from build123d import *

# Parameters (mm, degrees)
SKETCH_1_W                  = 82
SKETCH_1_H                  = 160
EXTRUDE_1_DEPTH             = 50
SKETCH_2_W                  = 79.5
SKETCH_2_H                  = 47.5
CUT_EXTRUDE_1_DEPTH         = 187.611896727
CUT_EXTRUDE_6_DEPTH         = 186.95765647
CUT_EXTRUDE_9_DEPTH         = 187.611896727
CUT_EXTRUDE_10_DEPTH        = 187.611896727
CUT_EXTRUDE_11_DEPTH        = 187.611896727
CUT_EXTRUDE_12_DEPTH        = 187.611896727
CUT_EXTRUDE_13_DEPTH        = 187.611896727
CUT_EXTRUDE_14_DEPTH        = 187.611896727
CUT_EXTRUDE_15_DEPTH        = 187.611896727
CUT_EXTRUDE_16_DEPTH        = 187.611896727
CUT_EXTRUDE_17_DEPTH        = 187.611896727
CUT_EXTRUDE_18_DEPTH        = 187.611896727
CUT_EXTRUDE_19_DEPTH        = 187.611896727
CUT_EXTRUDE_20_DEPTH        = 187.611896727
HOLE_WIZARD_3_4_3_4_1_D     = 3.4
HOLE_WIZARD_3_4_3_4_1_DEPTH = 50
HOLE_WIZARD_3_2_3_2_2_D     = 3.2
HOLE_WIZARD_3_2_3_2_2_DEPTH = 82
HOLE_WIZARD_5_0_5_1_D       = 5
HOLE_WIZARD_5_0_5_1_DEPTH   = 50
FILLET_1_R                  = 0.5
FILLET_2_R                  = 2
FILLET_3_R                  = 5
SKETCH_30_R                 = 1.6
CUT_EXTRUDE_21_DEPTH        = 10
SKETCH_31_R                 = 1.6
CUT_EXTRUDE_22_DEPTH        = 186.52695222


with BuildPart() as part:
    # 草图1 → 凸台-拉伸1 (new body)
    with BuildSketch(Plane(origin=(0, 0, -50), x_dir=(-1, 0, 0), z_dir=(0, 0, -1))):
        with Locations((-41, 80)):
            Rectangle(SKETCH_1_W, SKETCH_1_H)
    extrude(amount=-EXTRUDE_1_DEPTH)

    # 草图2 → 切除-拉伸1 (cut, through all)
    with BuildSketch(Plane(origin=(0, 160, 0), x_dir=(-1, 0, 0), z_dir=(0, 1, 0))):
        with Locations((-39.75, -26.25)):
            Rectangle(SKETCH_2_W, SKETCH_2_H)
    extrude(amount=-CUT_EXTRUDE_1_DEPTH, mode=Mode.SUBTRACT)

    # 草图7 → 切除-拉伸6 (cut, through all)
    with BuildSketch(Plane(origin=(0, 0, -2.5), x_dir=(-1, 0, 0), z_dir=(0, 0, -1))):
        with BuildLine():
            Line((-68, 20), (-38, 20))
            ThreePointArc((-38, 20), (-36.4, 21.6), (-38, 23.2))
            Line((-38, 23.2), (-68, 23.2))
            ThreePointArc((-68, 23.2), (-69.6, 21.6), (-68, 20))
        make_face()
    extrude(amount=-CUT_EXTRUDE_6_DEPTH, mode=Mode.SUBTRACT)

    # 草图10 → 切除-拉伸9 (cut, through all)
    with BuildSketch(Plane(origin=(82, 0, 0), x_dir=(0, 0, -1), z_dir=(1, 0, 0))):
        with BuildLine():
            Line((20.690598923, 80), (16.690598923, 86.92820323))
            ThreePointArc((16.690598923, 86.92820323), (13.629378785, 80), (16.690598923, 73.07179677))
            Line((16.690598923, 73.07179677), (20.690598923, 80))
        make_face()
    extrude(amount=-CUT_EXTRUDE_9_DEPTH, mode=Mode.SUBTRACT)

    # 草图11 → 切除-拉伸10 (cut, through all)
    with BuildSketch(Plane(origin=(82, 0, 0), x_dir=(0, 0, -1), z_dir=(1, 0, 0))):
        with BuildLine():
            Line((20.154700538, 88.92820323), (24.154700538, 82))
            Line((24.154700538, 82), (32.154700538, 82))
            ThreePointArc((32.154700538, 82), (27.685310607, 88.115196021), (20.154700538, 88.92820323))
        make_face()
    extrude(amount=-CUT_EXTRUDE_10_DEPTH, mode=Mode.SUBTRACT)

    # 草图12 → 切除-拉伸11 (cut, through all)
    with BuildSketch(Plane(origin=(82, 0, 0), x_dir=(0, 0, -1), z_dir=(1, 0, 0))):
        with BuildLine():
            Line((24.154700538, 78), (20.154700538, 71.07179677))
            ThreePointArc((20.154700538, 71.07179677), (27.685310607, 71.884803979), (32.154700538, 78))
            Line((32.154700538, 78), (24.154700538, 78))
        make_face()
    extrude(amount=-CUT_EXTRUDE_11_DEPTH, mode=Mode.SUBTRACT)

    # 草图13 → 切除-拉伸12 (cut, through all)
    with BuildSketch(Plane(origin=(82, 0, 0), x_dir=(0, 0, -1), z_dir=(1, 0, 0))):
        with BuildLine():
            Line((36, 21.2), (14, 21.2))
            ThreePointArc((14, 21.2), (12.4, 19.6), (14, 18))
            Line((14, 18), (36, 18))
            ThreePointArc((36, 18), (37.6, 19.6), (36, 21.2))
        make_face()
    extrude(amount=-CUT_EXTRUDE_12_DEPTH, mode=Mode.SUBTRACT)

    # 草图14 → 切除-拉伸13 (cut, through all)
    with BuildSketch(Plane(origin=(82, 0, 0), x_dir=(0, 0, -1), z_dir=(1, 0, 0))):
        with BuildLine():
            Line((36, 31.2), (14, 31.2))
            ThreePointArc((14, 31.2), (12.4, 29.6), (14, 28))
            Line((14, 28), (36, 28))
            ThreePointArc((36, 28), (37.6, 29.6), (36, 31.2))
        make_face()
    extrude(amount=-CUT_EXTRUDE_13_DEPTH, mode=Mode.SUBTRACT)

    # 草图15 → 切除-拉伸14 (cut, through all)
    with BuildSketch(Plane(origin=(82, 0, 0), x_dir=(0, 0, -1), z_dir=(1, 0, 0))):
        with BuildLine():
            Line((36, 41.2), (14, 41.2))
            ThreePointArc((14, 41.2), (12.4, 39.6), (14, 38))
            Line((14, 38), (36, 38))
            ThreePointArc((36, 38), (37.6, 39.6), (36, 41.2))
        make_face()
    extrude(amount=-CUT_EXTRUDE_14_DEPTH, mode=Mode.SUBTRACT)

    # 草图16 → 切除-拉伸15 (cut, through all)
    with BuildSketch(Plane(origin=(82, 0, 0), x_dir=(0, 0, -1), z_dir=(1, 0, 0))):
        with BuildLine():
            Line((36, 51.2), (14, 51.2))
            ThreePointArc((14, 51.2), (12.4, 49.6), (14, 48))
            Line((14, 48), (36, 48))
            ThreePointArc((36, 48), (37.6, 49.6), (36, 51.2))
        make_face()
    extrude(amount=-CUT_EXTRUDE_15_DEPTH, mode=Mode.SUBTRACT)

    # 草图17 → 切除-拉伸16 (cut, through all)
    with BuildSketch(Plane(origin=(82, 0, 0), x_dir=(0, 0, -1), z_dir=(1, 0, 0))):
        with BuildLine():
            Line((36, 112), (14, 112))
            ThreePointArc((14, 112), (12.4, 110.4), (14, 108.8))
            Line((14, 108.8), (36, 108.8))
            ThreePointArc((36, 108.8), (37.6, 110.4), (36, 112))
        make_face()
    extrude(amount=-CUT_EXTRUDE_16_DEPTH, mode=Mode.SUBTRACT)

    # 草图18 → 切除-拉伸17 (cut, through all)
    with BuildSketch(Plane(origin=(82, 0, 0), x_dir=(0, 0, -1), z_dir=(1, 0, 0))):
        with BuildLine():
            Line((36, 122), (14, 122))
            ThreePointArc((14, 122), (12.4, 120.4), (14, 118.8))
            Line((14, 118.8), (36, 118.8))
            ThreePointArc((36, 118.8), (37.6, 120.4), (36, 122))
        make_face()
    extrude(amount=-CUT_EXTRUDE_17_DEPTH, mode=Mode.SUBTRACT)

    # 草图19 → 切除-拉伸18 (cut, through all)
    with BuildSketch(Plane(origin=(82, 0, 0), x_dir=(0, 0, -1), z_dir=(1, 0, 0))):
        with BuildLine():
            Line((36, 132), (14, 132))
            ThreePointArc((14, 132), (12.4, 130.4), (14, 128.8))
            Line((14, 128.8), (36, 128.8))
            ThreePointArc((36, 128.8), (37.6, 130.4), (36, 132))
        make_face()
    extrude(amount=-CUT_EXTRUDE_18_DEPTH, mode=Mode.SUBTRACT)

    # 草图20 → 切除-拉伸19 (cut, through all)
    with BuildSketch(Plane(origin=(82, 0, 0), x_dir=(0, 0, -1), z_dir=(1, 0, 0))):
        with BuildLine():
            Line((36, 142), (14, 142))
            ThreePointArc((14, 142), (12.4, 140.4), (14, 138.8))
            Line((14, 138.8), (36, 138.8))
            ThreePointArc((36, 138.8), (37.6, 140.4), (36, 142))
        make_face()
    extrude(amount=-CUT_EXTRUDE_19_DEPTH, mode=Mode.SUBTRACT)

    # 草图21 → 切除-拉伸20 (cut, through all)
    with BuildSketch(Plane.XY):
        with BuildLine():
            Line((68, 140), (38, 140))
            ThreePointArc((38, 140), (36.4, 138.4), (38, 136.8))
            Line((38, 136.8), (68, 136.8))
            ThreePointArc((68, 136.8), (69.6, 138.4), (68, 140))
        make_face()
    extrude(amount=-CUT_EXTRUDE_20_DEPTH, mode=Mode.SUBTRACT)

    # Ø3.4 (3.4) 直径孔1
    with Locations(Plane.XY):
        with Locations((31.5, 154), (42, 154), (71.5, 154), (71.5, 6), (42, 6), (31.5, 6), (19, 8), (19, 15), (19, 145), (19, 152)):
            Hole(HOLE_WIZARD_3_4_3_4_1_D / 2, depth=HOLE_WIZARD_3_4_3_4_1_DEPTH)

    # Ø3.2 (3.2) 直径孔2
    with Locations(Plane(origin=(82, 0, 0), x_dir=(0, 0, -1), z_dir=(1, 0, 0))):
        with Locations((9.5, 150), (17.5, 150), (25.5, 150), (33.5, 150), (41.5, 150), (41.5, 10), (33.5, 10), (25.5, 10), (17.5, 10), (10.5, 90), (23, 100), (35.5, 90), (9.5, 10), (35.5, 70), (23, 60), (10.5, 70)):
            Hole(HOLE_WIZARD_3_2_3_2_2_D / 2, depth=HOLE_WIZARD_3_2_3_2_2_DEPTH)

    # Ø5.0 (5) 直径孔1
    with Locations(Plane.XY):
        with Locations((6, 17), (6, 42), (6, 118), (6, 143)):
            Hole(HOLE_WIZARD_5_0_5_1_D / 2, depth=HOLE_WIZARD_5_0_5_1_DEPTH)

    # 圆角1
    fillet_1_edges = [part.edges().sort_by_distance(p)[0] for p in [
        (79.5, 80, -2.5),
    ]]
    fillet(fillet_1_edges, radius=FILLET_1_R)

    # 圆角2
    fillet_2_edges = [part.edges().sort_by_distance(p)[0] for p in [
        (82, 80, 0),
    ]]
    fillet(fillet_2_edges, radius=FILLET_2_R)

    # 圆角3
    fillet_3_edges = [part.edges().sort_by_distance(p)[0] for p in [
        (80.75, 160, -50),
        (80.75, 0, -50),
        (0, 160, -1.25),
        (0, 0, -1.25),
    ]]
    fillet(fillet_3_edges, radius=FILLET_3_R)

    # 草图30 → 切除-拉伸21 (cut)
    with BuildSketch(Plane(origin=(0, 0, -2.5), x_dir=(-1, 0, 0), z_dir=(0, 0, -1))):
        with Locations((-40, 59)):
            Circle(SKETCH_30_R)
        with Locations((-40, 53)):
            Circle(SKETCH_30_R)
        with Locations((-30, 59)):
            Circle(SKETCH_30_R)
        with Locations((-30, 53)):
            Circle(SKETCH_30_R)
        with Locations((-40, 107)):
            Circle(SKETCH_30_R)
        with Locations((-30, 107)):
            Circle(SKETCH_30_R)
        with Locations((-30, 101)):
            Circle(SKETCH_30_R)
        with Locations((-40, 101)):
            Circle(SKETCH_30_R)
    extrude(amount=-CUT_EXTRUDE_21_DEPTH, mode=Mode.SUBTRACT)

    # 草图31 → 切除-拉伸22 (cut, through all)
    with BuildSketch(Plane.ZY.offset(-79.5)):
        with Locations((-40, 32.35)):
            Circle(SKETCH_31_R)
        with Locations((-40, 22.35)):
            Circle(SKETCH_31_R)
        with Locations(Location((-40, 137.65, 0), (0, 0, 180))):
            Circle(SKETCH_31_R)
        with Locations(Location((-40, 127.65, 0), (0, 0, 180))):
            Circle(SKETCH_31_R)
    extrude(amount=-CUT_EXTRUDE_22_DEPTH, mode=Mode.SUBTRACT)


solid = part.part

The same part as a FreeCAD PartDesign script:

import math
import FreeCAD as App
import Part
import Sketcher

V = App.Vector
Q = App.Units.Quantity


def edges_at(feature, points):
    """Names of the edges that pass closest to the given points."""
    edges = feature.Shape.Edges
    near = lambda p: min(range(len(edges)), key=lambda i: edges[i].distToShape(Part.Vertex(*p))[0])
    return sorted({f"Edge{near(p) + 1}" for p in points})


def add_polygon(sketch, points):
    """Adds a closed chain of lines whose ends are joined by coincident constraints."""
    first, n = sketch.GeometryCount, len(points)
    for a, b in zip(points, points[1:] + points[:1]):
        sketch.addGeometry(Part.LineSegment(App.Vector(*a, 0), App.Vector(*b, 0)), False)
    for i in range(n):
        sketch.addConstraint(Sketcher.Constraint("Coincident", first + i, 2, first + (i + 1) % n, 1))

doc = App.newDocument("Part")
params = doc.addObject("Spreadsheet::Sheet", "Params")
for row, (alias, value) in enumerate([
    ("sketch1_width", "82 mm"),
    ("sketch1_height", "160 mm"),
    ("pad1_length", "50 mm"),
    ("sketch2_width", "79.5 mm"),
    ("sketch2_height", "47.5 mm"),
    ("sketch3_radius", "1.6 mm"),
    ("sketch3_width", "30 mm"),
    ("sketch4_length", "8 mm"),
    ("sketch5_height", "8 mm"),
    ("sketch5_length", "8 mm"),
    ("sketch6_height", "8 mm"),
    ("sketch6_length", "8 mm"),
    ("sketch7_radius", "1.6 mm"),
    ("sketch7_height", "22 mm"),
    ("sketch8_radius", "1.6 mm"),
    ("sketch8_height", "22 mm"),
    ("sketch9_radius", "1.6 mm"),
    ("sketch9_height", "22 mm"),
    ("sketch10_radius", "1.6 mm"),
    ("sketch10_height", "22 mm"),
    ("sketch11_radius", "1.6 mm"),
    ("sketch11_height", "22 mm"),
    ("sketch12_radius", "1.6 mm"),
    ("sketch12_height", "22 mm"),
    ("sketch13_radius", "1.6 mm"),
    ("sketch13_height", "22 mm"),
    ("sketch14_radius", "1.6 mm"),
    ("sketch14_height", "22 mm"),
    ("sketch15_radius", "1.6 mm"),
    ("sketch15_width", "30 mm"),
    ("sketch16_diameter", "3.4 mm"),
    ("hole_diameter", "3.4 mm"),
    ("hole_depth", "50 mm"),
    ("sketch17_diameter", "3.2 mm"),
    ("hole2_diameter", "3.2 mm"),
    ("hole2_depth", "82 mm"),
    ("sketch18_diameter", "5 mm"),
    ("hole3_diameter", "5 mm"),
    ("hole3_depth", "50 mm"),
    ("fillet_radius", "0.5 mm"),
    ("fillet2_radius", "2 mm"),
    ("fillet3_radius", "5 mm"),
    ("sketch19_diameter", "3.2 mm"),
    ("pocket15_length", "10 mm"),
    ("sketch20_diameter", "3.2 mm"),
], start=1):
    params.set(f"A{row}", alias)
    params.set(f"B{row}", "=" + value)
    params.setAlias(f"B{row}", alias)

body = doc.addObject("PartDesign::Body", "Body")

# Sketch on XY plane
sketch1 = doc.addObject("Sketcher::SketchObject", "Sketch")
body.addObject(sketch1)
sketch1.AttachmentSupport = (doc.XY_Plane, [""])
sketch1.MapMode = "FlatFace"
sketch1.AttachmentOffset = App.Placement(V(0, 0, -50), App.Rotation())
add_polygon(sketch1, [(82, 160), (82, 0), (0, 0), (0, 160)])  # lines 0-3
sketch1.addConstraint([
    Sketcher.Constraint("Vertical", 0),
    Sketcher.Constraint("Horizontal", 1),
    Sketcher.Constraint("Vertical", 2),
    Sketcher.Constraint("Horizontal", 3),
    Sketcher.Constraint("Coincident", 1, 2, -1, 1),
    Sketcher.Constraint("DistanceX", 1, 2, 1, 1, 82.0),
    Sketcher.Constraint("DistanceY", 0, 2, 0, 1, 160.0),
])
sketch1.setExpression("Constraints[9]", "Params.sketch1_width")
sketch1.setExpression("Constraints[10]", "Params.sketch1_height")
pad1 = doc.addObject("PartDesign::Pad", "Pad")
body.addObject(pad1)
pad1.Profile = sketch1
pad1.setExpression("Length", "Params.pad1_length")

# Sketch on XZ plane
sketch2 = doc.addObject("Sketcher::SketchObject", "Sketch001")
body.addObject(sketch2)
sketch2.AttachmentSupport = (doc.XZ_Plane, [""])
sketch2.MapMode = "FlatFace"
sketch2.AttachmentOffset = App.Placement(V(0, 0, -160), App.Rotation())
add_polygon(sketch2, [(80, -2), (80, -50), (0, -50), (0, -2)])  # lines 0-3
sketch2.addConstraint([
    Sketcher.Constraint("Vertical", 0),
    Sketcher.Constraint("Horizontal", 1),
    Sketcher.Constraint("Vertical", 2),
    Sketcher.Constraint("Horizontal", 3),
    Sketcher.Constraint("PointOnObject", 1, 2, -2),
    Sketcher.Constraint("DistanceX", 1, 2, 1, 1, 79.5),
    Sketcher.Constraint("DistanceY", 0, 2, 0, 1, 47.5),
    Sketcher.Constraint("DistanceY", 0, 2, -1, 1, 50.0),
])
sketch2.setExpression("Constraints[9]", "Params.sketch2_width")
sketch2.setExpression("Constraints[10]", "Params.sketch2_height")
pocket1 = doc.addObject("PartDesign::Pocket", "Pocket")
body.addObject(pocket1)
pocket1.Profile = sketch2
pocket1.Type = "ThroughAll"
pocket1.Reversed = True

# Sketch on XY plane
sketch3 = doc.addObject("Sketcher::SketchObject", "Sketch002")
body.addObject(sketch3)
sketch3.AttachmentSupport = (doc.XY_Plane, [""])
sketch3.MapMode = "FlatFace"
sketch3.AttachmentOffset = App.Placement(V(0, 0, -2.5), App.Rotation())
sketch3.addGeometry([
    Part.LineSegment(V(68, 20, 0), V(38, 20, 0)),
    Part.ArcOfCircle(Part.Circle(V(38, 21.6, 0), V(0, 0, 1), 1.6), math.radians(90), math.radians(270)),
    Part.LineSegment(V(38, 23.2, 0), V(68, 23.2, 0)),
    Part.ArcOfCircle(Part.Circle(V(68, 21.6, 0), V(0, 0, 1), 1.6), math.radians(-90), math.radians(90)),
], False)
sketch3.addConstraint([
    Sketcher.Constraint("Tangent", 0, 2, 1, 2),
    Sketcher.Constraint("Tangent", 1, 1, 2, 1),
    Sketcher.Constraint("Tangent", 2, 2, 3, 2),
    Sketcher.Constraint("Tangent", 3, 1, 0, 1),
    Sketcher.Constraint("Horizontal", 0),
    Sketcher.Constraint("Horizontal", 2),
    Sketcher.Constraint("Radius", 1, 1.6),
    Sketcher.Constraint("DistanceX", 0, 2, 0, 1, 30.0),
    Sketcher.Constraint("DistanceX", -1, 1, 1, 3, 38.0),
    Sketcher.Constraint("DistanceY", -1, 1, 0, 2, 20.0),
])
sketch3.setExpression("Constraints[6]", "Params.sketch3_radius")
sketch3.setExpression("Constraints[7]", "Params.sketch3_width")
pocket2 = doc.addObject("PartDesign::Pocket", "Pocket001")
body.addObject(pocket2)
pocket2.Profile = sketch3
pocket2.Type = "ThroughAll"
pocket2.Reversed = True

# Sketch on YZ plane
sketch4 = doc.addObject("Sketcher::SketchObject", "Sketch003")
body.addObject(sketch4)
sketch4.AttachmentSupport = (doc.YZ_Plane, [""])
sketch4.MapMode = "FlatFace"
sketch4.AttachmentOffset = App.Placement(V(0, 0, 82), App.Rotation())
sketch4.addGeometry([
    Part.LineSegment(V(80, -21, 0), V(87, -17, 0)),
    Part.ArcOfCircle(Part.Circle(V(80, -23, 0), V(0, 0, 1), 9), math.radians(42), math.radians(138)),
    Part.LineSegment(V(73, -17, 0), V(80, -21, 0)),
], False)
sketch4.addConstraint([
    Sketcher.Constraint("Coincident", 0, 2, 1, 1),
    Sketcher.Constraint("Coincident", 1, 2, 2, 1),
    Sketcher.Constraint("Coincident", 2, 2, 0, 1),
    Sketcher.Constraint("Horizontal", 0, 2, 1, 2),
    Sketcher.Constraint("Vertical", 1, 3, 2, 2),
    Sketcher.Constraint("Angle", 0, Q("30 deg")),
    Sketcher.Constraint("Distance", 0, 8.0),
    Sketcher.Constraint("DistanceX", -1, 1, 1, 3, 80.0),
    Sketcher.Constraint("DistanceY", 1, 3, -1, 1, 23.0),
    Sketcher.Constraint("Radius", 1, 9.370621),
])
sketch4.setExpression("Constraints[6]", "Params.sketch4_length")
pocket3 = doc.addObject("PartDesign::Pocket", "Pocket002")
body.addObject(pocket3)
pocket3.Profile = sketch4
pocket3.Type = "ThroughAll"

# Sketch on YZ plane
sketch5 = doc.addObject("Sketcher::SketchObject", "Sketch004")
body.addObject(sketch5)
sketch5.AttachmentSupport = (doc.YZ_Plane, [""])
sketch5.MapMode = "FlatFace"
sketch5.AttachmentOffset = App.Placement(V(0, 0, 82), App.Rotation())
sketch5.addGeometry([
    Part.LineSegment(V(89, -20, 0), V(82, -24, 0)),
    Part.LineSegment(V(82, -24, 0), V(82, -32, 0)),
    Part.ArcOfCircle(Part.Circle(V(80, -23, 0), V(0, 0, 1), 9), math.radians(-78), math.radians(18)),
], False)
sketch5.addConstraint([
    Sketcher.Constraint("Coincident", 0, 2, 1, 1),
    Sketcher.Constraint("Coincident", 1, 2, 2, 1),
    Sketcher.Constraint("Coincident", 2, 2, 0, 1),
    Sketcher.Constraint("Vertical", 1),
    Sketcher.Constraint("DistanceY", 1, 2, 1, 1, 8.0),
    Sketcher.Constraint("Angle", 0, Q("-150 deg")),
    Sketcher.Constraint("Distance", 0, 8.0),
    Sketcher.Constraint("DistanceX", -1, 1, 2, 3, 80.0),
    Sketcher.Constraint("DistanceY", 2, 3, -1, 1, 23.0),
    Sketcher.Constraint("DistanceX", -1, 1, 0, 2, 82.0),
])
sketch5.setExpression("Constraints[4]", "Params.sketch5_height")
sketch5.setExpression("Constraints[6]", "Params.sketch5_length")
pocket4 = doc.addObject("PartDesign::Pocket", "Pocket003")
body.addObject(pocket4)
pocket4.Profile = sketch5
pocket4.Type = "ThroughAll"

# Sketch on YZ plane
sketch6 = doc.addObject("Sketcher::SketchObject", "Sketch005")
body.addObject(sketch6)
sketch6.AttachmentSupport = (doc.YZ_Plane, [""])
sketch6.MapMode = "FlatFace"
sketch6.AttachmentOffset = App.Placement(V(0, 0, 82), App.Rotation())
sketch6.addGeometry([
    Part.LineSegment(V(78, -24, 0), V(71, -20, 0)),
    Part.ArcOfCircle(Part.Circle(V(80, -23, 0), V(0, 0, 1), 9), math.radians(162), math.radians(258)),
    Part.LineSegment(V(78, -32, 0), V(78, -24, 0)),
], False)
sketch6.addConstraint([
    Sketcher.Constraint("Coincident", 0, 2, 1, 1),
    Sketcher.Constraint("Coincident", 1, 2, 2, 1),
    Sketcher.Constraint("Coincident", 2, 2, 0, 1),
    Sketcher.Constraint("Vertical", 2),
    Sketcher.Constraint("DistanceY", 2, 1, 2, 2, 8.0),
    Sketcher.Constraint("Angle", 0, Q("150 deg")),
    Sketcher.Constraint("Distance", 0, 8.0),
    Sketcher.Constraint("DistanceX", -1, 1, 1, 3, 80.0),
    Sketcher.Constraint("DistanceY", 1, 3, -1, 1, 23.0),
    Sketcher.Constraint("DistanceX", -1, 1, 1, 2, 78.0),
])
sketch6.setExpression("Constraints[4]", "Params.sketch6_height")
sketch6.setExpression("Constraints[6]", "Params.sketch6_length")
pocket5 = doc.addObject("PartDesign::Pocket", "Pocket004")
body.addObject(pocket5)
pocket5.Profile = sketch6
pocket5.Type = "ThroughAll"

# Sketch on YZ plane
sketch7 = doc.addObject("Sketcher::SketchObject", "Sketch006")
body.addObject(sketch7)
sketch7.AttachmentSupport = (doc.YZ_Plane, [""])
sketch7.MapMode = "FlatFace"
sketch7.AttachmentOffset = App.Placement(V(0, 0, 82), App.Rotation())
sketch7.addGeometry([
    Part.LineSegment(V(21.2, -36, 0), V(21.2, -14, 0)),
    Part.ArcOfCircle(Part.Circle(V(19.6, -14, 0), V(0, 0, 1), 1.6), math.radians(0), math.radians(180)),
    Part.LineSegment(V(18, -14, 0), V(18, -36, 0)),
    Part.ArcOfCircle(Part.Circle(V(19.6, -36, 0), V(0, 0, 1), 1.6), math.radians(180), math.radians(360)),
], False)
sketch7.addConstraint([
    Sketcher.Constraint("Tangent", 0, 2, 1, 1),
    Sketcher.Constraint("Tangent", 1, 2, 2, 1),
    Sketcher.Constraint("Tangent", 2, 2, 3, 1),
    Sketcher.Constraint("Tangent", 3, 2, 0, 1),
    Sketcher.Constraint("Vertical", 0),
    Sketcher.Constraint("Vertical", 2),
    Sketcher.Constraint("Radius", 1, 1.6),
    Sketcher.Constraint("DistanceY", 0, 1, 0, 2, 22.0),
    Sketcher.Constraint("DistanceY", 1, 3, -1, 1, 14.0),
    Sketcher.Constraint("DistanceX", -1, 1, 1, 2, 18.0),
])
sketch7.setExpression("Constraints[6]", "Params.sketch7_radius")
sketch7.setExpression("Constraints[7]", "Params.sketch7_height")
pocket6 = doc.addObject("PartDesign::Pocket", "Pocket005")
body.addObject(pocket6)
pocket6.Profile = sketch7
pocket6.Type = "ThroughAll"

# Sketch on YZ plane
sketch8 = doc.addObject("Sketcher::SketchObject", "Sketch007")
body.addObject(sketch8)
sketch8.AttachmentSupport = (doc.YZ_Plane, [""])
sketch8.MapMode = "FlatFace"
sketch8.AttachmentOffset = App.Placement(V(0, 0, 82), App.Rotation())
sketch8.addGeometry([
    Part.LineSegment(V(31.2, -36, 0), V(31.2, -14, 0)),
    Part.ArcOfCircle(Part.Circle(V(29.6, -14, 0), V(0, 0, 1), 1.6), math.radians(0), math.radians(180)),
    Part.LineSegment(V(28, -14, 0), V(28, -36, 0)),
    Part.ArcOfCircle(Part.Circle(V(29.6, -36, 0), V(0, 0, 1), 1.6), math.radians(180), math.radians(360)),
], False)
sketch8.addConstraint([
    Sketcher.Constraint("Tangent", 0, 2, 1, 1),
    Sketcher.Constraint("Tangent", 1, 2, 2, 1),
    Sketcher.Constraint("Tangent", 2, 2, 3, 1),
    Sketcher.Constraint("Tangent", 3, 2, 0, 1),
    Sketcher.Constraint("Vertical", 0),
    Sketcher.Constraint("Vertical", 2),
    Sketcher.Constraint("Radius", 1, 1.6),
    Sketcher.Constraint("DistanceY", 0, 1, 0, 2, 22.0),
    Sketcher.Constraint("DistanceY", 1, 3, -1, 1, 14.0),
    Sketcher.Constraint("DistanceX", -1, 1, 1, 2, 28.0),
])
sketch8.setExpression("Constraints[6]", "Params.sketch8_radius")
sketch8.setExpression("Constraints[7]", "Params.sketch8_height")
pocket7 = doc.addObject("PartDesign::Pocket", "Pocket006")
body.addObject(pocket7)
pocket7.Profile = sketch8
pocket7.Type = "ThroughAll"

# Sketch on YZ plane
sketch9 = doc.addObject("Sketcher::SketchObject", "Sketch008")
body.addObject(sketch9)
sketch9.AttachmentSupport = (doc.YZ_Plane, [""])
sketch9.MapMode = "FlatFace"
sketch9.AttachmentOffset = App.Placement(V(0, 0, 82), App.Rotation())
sketch9.addGeometry([
    Part.LineSegment(V(41.2, -36, 0), V(41.2, -14, 0)),
    Part.ArcOfCircle(Part.Circle(V(39.6, -14, 0), V(0, 0, 1), 1.6), math.radians(0), math.radians(180)),
    Part.LineSegment(V(38, -14, 0), V(38, -36, 0)),
    Part.ArcOfCircle(Part.Circle(V(39.6, -36, 0), V(0, 0, 1), 1.6), math.radians(180), math.radians(360)),
], False)
sketch9.addConstraint([
    Sketcher.Constraint("Tangent", 0, 2, 1, 1),
    Sketcher.Constraint("Tangent", 1, 2, 2, 1),
    Sketcher.Constraint("Tangent", 2, 2, 3, 1),
    Sketcher.Constraint("Tangent", 3, 2, 0, 1),
    Sketcher.Constraint("Vertical", 0),
    Sketcher.Constraint("Vertical", 2),
    Sketcher.Constraint("Radius", 1, 1.6),
    Sketcher.Constraint("DistanceY", 0, 1, 0, 2, 22.0),
    Sketcher.Constraint("DistanceY", 1, 3, -1, 1, 14.0),
    Sketcher.Constraint("DistanceX", -1, 1, 1, 2, 38.0),
])
sketch9.setExpression("Constraints[6]", "Params.sketch9_radius")
sketch9.setExpression("Constraints[7]", "Params.sketch9_height")
pocket8 = doc.addObject("PartDesign::Pocket", "Pocket007")
body.addObject(pocket8)
pocket8.Profile = sketch9
pocket8.Type = "ThroughAll"

# Sketch on YZ plane
sketch10 = doc.addObject("Sketcher::SketchObject", "Sketch009")
body.addObject(sketch10)
sketch10.AttachmentSupport = (doc.YZ_Plane, [""])
sketch10.MapMode = "FlatFace"
sketch10.AttachmentOffset = App.Placement(V(0, 0, 82), App.Rotation())
sketch10.addGeometry([
    Part.LineSegment(V(51.2, -36, 0), V(51.2, -14, 0)),
    Part.ArcOfCircle(Part.Circle(V(49.6, -14, 0), V(0, 0, 1), 1.6), math.radians(0), math.radians(180)),
    Part.LineSegment(V(48, -14, 0), V(48, -36, 0)),
    Part.ArcOfCircle(Part.Circle(V(49.6, -36, 0), V(0, 0, 1), 1.6), math.radians(180), math.radians(360)),
], False)
sketch10.addConstraint([
    Sketcher.Constraint("Tangent", 0, 2, 1, 1),
    Sketcher.Constraint("Tangent", 1, 2, 2, 1),
    Sketcher.Constraint("Tangent", 2, 2, 3, 1),
    Sketcher.Constraint("Tangent", 3, 2, 0, 1),
    Sketcher.Constraint("Vertical", 0),
    Sketcher.Constraint("Vertical", 2),
    Sketcher.Constraint("Radius", 1, 1.6),
    Sketcher.Constraint("DistanceY", 0, 1, 0, 2, 22.0),
    Sketcher.Constraint("DistanceY", 1, 3, -1, 1, 14.0),
    Sketcher.Constraint("DistanceX", -1, 1, 1, 2, 48.0),
])
sketch10.setExpression("Constraints[6]", "Params.sketch10_radius")
sketch10.setExpression("Constraints[7]", "Params.sketch10_height")
pocket9 = doc.addObject("PartDesign::Pocket", "Pocket008")
body.addObject(pocket9)
pocket9.Profile = sketch10
pocket9.Type = "ThroughAll"

# Sketch on YZ plane
sketch11 = doc.addObject("Sketcher::SketchObject", "Sketch010")
body.addObject(sketch11)
sketch11.AttachmentSupport = (doc.YZ_Plane, [""])
sketch11.MapMode = "FlatFace"
sketch11.AttachmentOffset = App.Placement(V(0, 0, 82), App.Rotation())
sketch11.addGeometry([
    Part.LineSegment(V(112, -36, 0), V(112, -14, 0)),
    Part.ArcOfCircle(Part.Circle(V(110.4, -14, 0), V(0, 0, 1), 1.6), math.radians(0), math.radians(180)),
    Part.LineSegment(V(108.8, -14, 0), V(108.8, -36, 0)),
    Part.ArcOfCircle(Part.Circle(V(110.4, -36, 0), V(0, 0, 1), 1.6), math.radians(180), math.radians(360)),
], False)
sketch11.addConstraint([
    Sketcher.Constraint("Tangent", 0, 2, 1, 1),
    Sketcher.Constraint("Tangent", 1, 2, 2, 1),
    Sketcher.Constraint("Tangent", 2, 2, 3, 1),
    Sketcher.Constraint("Tangent", 3, 2, 0, 1),
    Sketcher.Constraint("Vertical", 0),
    Sketcher.Constraint("Vertical", 2),
    Sketcher.Constraint("Radius", 1, 1.6),
    Sketcher.Constraint("DistanceY", 0, 1, 0, 2, 22.0),
    Sketcher.Constraint("DistanceY", 1, 3, -1, 1, 14.0),
    Sketcher.Constraint("DistanceX", -1, 1, 0, 2, 112.0),
])
sketch11.setExpression("Constraints[6]", "Params.sketch11_radius")
sketch11.setExpression("Constraints[7]", "Params.sketch11_height")
pocket10 = doc.addObject("PartDesign::Pocket", "Pocket009")
body.addObject(pocket10)
pocket10.Profile = sketch11
pocket10.Type = "ThroughAll"

# Sketch on YZ plane
sketch12 = doc.addObject("Sketcher::SketchObject", "Sketch011")
body.addObject(sketch12)
sketch12.AttachmentSupport = (doc.YZ_Plane, [""])
sketch12.MapMode = "FlatFace"
sketch12.AttachmentOffset = App.Placement(V(0, 0, 82), App.Rotation())
sketch12.addGeometry([
    Part.LineSegment(V(122, -36, 0), V(122, -14, 0)),
    Part.ArcOfCircle(Part.Circle(V(120.4, -14, 0), V(0, 0, 1), 1.6), math.radians(0), math.radians(180)),
    Part.LineSegment(V(118.8, -14, 0), V(118.8, -36, 0)),
    Part.ArcOfCircle(Part.Circle(V(120.4, -36, 0), V(0, 0, 1), 1.6), math.radians(180), math.radians(360)),
], False)
sketch12.addConstraint([
    Sketcher.Constraint("Tangent", 0, 2, 1, 1),
    Sketcher.Constraint("Tangent", 1, 2, 2, 1),
    Sketcher.Constraint("Tangent", 2, 2, 3, 1),
    Sketcher.Constraint("Tangent", 3, 2, 0, 1),
    Sketcher.Constraint("Vertical", 0),
    Sketcher.Constraint("Vertical", 2),
    Sketcher.Constraint("Radius", 1, 1.6),
    Sketcher.Constraint("DistanceY", 0, 1, 0, 2, 22.0),
    Sketcher.Constraint("DistanceY", 1, 3, -1, 1, 14.0),
    Sketcher.Constraint("DistanceX", -1, 1, 0, 2, 122.0),
])
sketch12.setExpression("Constraints[6]", "Params.sketch12_radius")
sketch12.setExpression("Constraints[7]", "Params.sketch12_height")
pocket11 = doc.addObject("PartDesign::Pocket", "Pocket010")
body.addObject(pocket11)
pocket11.Profile = sketch12
pocket11.Type = "ThroughAll"

# Sketch on YZ plane
sketch13 = doc.addObject("Sketcher::SketchObject", "Sketch012")
body.addObject(sketch13)
sketch13.AttachmentSupport = (doc.YZ_Plane, [""])
sketch13.MapMode = "FlatFace"
sketch13.AttachmentOffset = App.Placement(V(0, 0, 82), App.Rotation())
sketch13.addGeometry([
    Part.LineSegment(V(132, -36, 0), V(132, -14, 0)),
    Part.ArcOfCircle(Part.Circle(V(130.4, -14, 0), V(0, 0, 1), 1.6), math.radians(0), math.radians(180)),
    Part.LineSegment(V(128.8, -14, 0), V(128.8, -36, 0)),
    Part.ArcOfCircle(Part.Circle(V(130.4, -36, 0), V(0, 0, 1), 1.6), math.radians(180), math.radians(360)),
], False)
sketch13.addConstraint([
    Sketcher.Constraint("Tangent", 0, 2, 1, 1),
    Sketcher.Constraint("Tangent", 1, 2, 2, 1),
    Sketcher.Constraint("Tangent", 2, 2, 3, 1),
    Sketcher.Constraint("Tangent", 3, 2, 0, 1),
    Sketcher.Constraint("Vertical", 0),
    Sketcher.Constraint("Vertical", 2),
    Sketcher.Constraint("Radius", 1, 1.6),
    Sketcher.Constraint("DistanceY", 0, 1, 0, 2, 22.0),
    Sketcher.Constraint("DistanceY", 1, 3, -1, 1, 14.0),
    Sketcher.Constraint("DistanceX", -1, 1, 0, 2, 132.0),
])
sketch13.setExpression("Constraints[6]", "Params.sketch13_radius")
sketch13.setExpression("Constraints[7]", "Params.sketch13_height")
pocket12 = doc.addObject("PartDesign::Pocket", "Pocket011")
body.addObject(pocket12)
pocket12.Profile = sketch13
pocket12.Type = "ThroughAll"

# Sketch on YZ plane
sketch14 = doc.addObject("Sketcher::SketchObject", "Sketch013")
body.addObject(sketch14)
sketch14.AttachmentSupport = (doc.YZ_Plane, [""])
sketch14.MapMode = "FlatFace"
sketch14.AttachmentOffset = App.Placement(V(0, 0, 82), App.Rotation())
sketch14.addGeometry([
    Part.LineSegment(V(142, -36, 0), V(142, -14, 0)),
    Part.ArcOfCircle(Part.Circle(V(140.4, -14, 0), V(0, 0, 1), 1.6), math.radians(0), math.radians(180)),
    Part.LineSegment(V(138.8, -14, 0), V(138.8, -36, 0)),
    Part.ArcOfCircle(Part.Circle(V(140.4, -36, 0), V(0, 0, 1), 1.6), math.radians(180), math.radians(360)),
], False)
sketch14.addConstraint([
    Sketcher.Constraint("Tangent", 0, 2, 1, 1),
    Sketcher.Constraint("Tangent", 1, 2, 2, 1),
    Sketcher.Constraint("Tangent", 2, 2, 3, 1),
    Sketcher.Constraint("Tangent", 3, 2, 0, 1),
    Sketcher.Constraint("Vertical", 0),
    Sketcher.Constraint("Vertical", 2),
    Sketcher.Constraint("Radius", 1, 1.6),
    Sketcher.Constraint("DistanceY", 0, 1, 0, 2, 22.0),
    Sketcher.Constraint("DistanceY", 1, 3, -1, 1, 14.0),
    Sketcher.Constraint("DistanceX", -1, 1, 0, 2, 142.0),
])
sketch14.setExpression("Constraints[6]", "Params.sketch14_radius")
sketch14.setExpression("Constraints[7]", "Params.sketch14_height")
pocket13 = doc.addObject("PartDesign::Pocket", "Pocket012")
body.addObject(pocket13)
pocket13.Profile = sketch14
pocket13.Type = "ThroughAll"

# Sketch on XY plane
sketch15 = doc.addObject("Sketcher::SketchObject", "Sketch014")
body.addObject(sketch15)
sketch15.AttachmentSupport = (doc.XY_Plane, [""])
sketch15.MapMode = "FlatFace"
sketch15.addGeometry([
    Part.LineSegment(V(68, 140, 0), V(38, 140, 0)),
    Part.ArcOfCircle(Part.Circle(V(38, 138.4, 0), V(0, 0, 1), 1.6), math.radians(90), math.radians(270)),
    Part.LineSegment(V(38, 136.8, 0), V(68, 136.8, 0)),
    Part.ArcOfCircle(Part.Circle(V(68, 138.4, 0), V(0, 0, 1), 1.6), math.radians(-90), math.radians(90)),
], False)
sketch15.addConstraint([
    Sketcher.Constraint("Tangent", 0, 2, 1, 1),
    Sketcher.Constraint("Tangent", 1, 2, 2, 1),
    Sketcher.Constraint("Tangent", 2, 2, 3, 1),
    Sketcher.Constraint("Tangent", 3, 2, 0, 1),
    Sketcher.Constraint("Horizontal", 0),
    Sketcher.Constraint("Horizontal", 2),
    Sketcher.Constraint("Radius", 1, 1.6),
    Sketcher.Constraint("DistanceX", 0, 2, 0, 1, 30.0),
    Sketcher.Constraint("DistanceX", -1, 1, 1, 3, 38.0),
    Sketcher.Constraint("DistanceY", -1, 1, 0, 2, 140.0),
])
sketch15.setExpression("Constraints[6]", "Params.sketch15_radius")
sketch15.setExpression("Constraints[7]", "Params.sketch15_width")
pocket14 = doc.addObject("PartDesign::Pocket", "Pocket013")
body.addObject(pocket14)
pocket14.Profile = sketch15
pocket14.Type = "ThroughAll"

# Sketch on XY plane
sketch16 = doc.addObject("Sketcher::SketchObject", "Sketch015")
body.addObject(sketch16)
sketch16.AttachmentSupport = (doc.XY_Plane, [""])
sketch16.MapMode = "FlatFace"
sketch16.addGeometry([
    Part.Circle(V(31.5, 154, 0), V(0, 0, 1), 1.7),  # 0
    Part.Circle(V(42, 154, 0), V(0, 0, 1), 1.7),  # 1
    Part.Circle(V(71.5, 154, 0), V(0, 0, 1), 1.7),  # 2
    Part.Circle(V(71.5, 6, 0), V(0, 0, 1), 1.7),  # 3
    Part.Circle(V(42, 6, 0), V(0, 0, 1), 1.7),  # 4
    Part.Circle(V(31.5, 6, 0), V(0, 0, 1), 1.7),  # 5
    Part.Circle(V(19, 8, 0), V(0, 0, 1), 1.7),  # 6
    Part.Circle(V(19, 15, 0), V(0, 0, 1), 1.7),  # 7
    Part.Circle(V(19, 145, 0), V(0, 0, 1), 1.7),  # 8
    Part.Circle(V(19, 152, 0), V(0, 0, 1), 1.7),  # 9
], False)
sketch16.addConstraint([
    Sketcher.Constraint("Equal", 0, 1),
    Sketcher.Constraint("Equal", 1, 2),
    Sketcher.Constraint("Equal", 2, 3),
    Sketcher.Constraint("Equal", 3, 4),
    Sketcher.Constraint("Equal", 4, 5),
    Sketcher.Constraint("Equal", 5, 6),
    Sketcher.Constraint("Equal", 6, 7),
    Sketcher.Constraint("Equal", 7, 8),
    Sketcher.Constraint("Equal", 8, 9),
    Sketcher.Constraint("Horizontal", 0, 3, 1, 3),
    Sketcher.Constraint("Horizontal", 1, 3, 2, 3),
    Sketcher.Constraint("Horizontal", 3, 3, 4, 3),
    Sketcher.Constraint("Horizontal", 4, 3, 5, 3),
    Sketcher.Constraint("Vertical", 2, 3, 3, 3),
    Sketcher.Constraint("Vertical", 1, 3, 4, 3),
    Sketcher.Constraint("Vertical", 0, 3, 5, 3),
    Sketcher.Constraint("Vertical", 6, 3, 7, 3),
    Sketcher.Constraint("Vertical", 7, 3, 8, 3),
    Sketcher.Constraint("Vertical", 8, 3, 9, 3),
    Sketcher.Constraint("Diameter", 0, 3.4),
    Sketcher.Constraint("DistanceY", -1, 1, 0, 3, 154.0),
    Sketcher.Constraint("DistanceX", -1, 1, 1, 3, 42.0),
    Sketcher.Constraint("DistanceY", -1, 1, 3, 3, 6.0),
    Sketcher.Constraint("DistanceX", -1, 1, 6, 3, 19.0),
    Sketcher.Constraint("DistanceY", -1, 1, 6, 3, 8.0),
    Sketcher.Constraint("DistanceY", -1, 1, 7, 3, 15.0),
    Sketcher.Constraint("DistanceY", -1, 1, 8, 3, 145.0),
    Sketcher.Constraint("DistanceY", -1, 1, 9, 3, 152.0),
    Sketcher.Constraint("DistanceX", 0, 3, 2, 3, 40.0),
    Sketcher.Constraint("DistanceX", -1, 1, 0, 3, 31.5),
])
sketch16.setExpression("Constraints[19]", "Params.sketch16_diameter")
doc.recompute()
hole = doc.addObject("PartDesign::Hole", "Hole")
body.addObject(hole)
hole.Profile = sketch16
hole.ThreadType = "None"
hole.setExpression("Diameter", "Params.hole_diameter")
hole.DepthType = "Dimension"
hole.setExpression("Depth", "Params.hole_depth")
hole.DrillPoint = "Flat"

# Sketch on YZ plane
sketch17 = doc.addObject("Sketcher::SketchObject", "Sketch016")
body.addObject(sketch17)
sketch17.AttachmentSupport = (doc.YZ_Plane, [""])
sketch17.MapMode = "FlatFace"
sketch17.AttachmentOffset = App.Placement(V(0, 0, 82), App.Rotation())
sketch17.addGeometry([
    Part.Circle(V(150, -9.5, 0), V(0, 0, 1), 1.6),  # 0
    Part.Circle(V(150, -17.5, 0), V(0, 0, 1), 1.6),  # 1
    Part.Circle(V(150, -25.5, 0), V(0, 0, 1), 1.6),  # 2
    Part.Circle(V(150, -33.5, 0), V(0, 0, 1), 1.6),  # 3
    Part.Circle(V(150, -41.5, 0), V(0, 0, 1), 1.6),  # 4
    Part.Circle(V(10, -41.5, 0), V(0, 0, 1), 1.6),  # 5
    Part.Circle(V(10, -33.5, 0), V(0, 0, 1), 1.6),  # 6
    Part.Circle(V(10, -25.5, 0), V(0, 0, 1), 1.6),  # 7
    Part.Circle(V(10, -17.5, 0), V(0, 0, 1), 1.6),  # 8
    Part.Circle(V(90, -10.5, 0), V(0, 0, 1), 1.6),  # 9
    Part.Circle(V(100, -23, 0), V(0, 0, 1), 1.6),  # 10
    Part.Circle(V(90, -35.5, 0), V(0, 0, 1), 1.6),  # 11
    Part.Circle(V(10, -9.5, 0), V(0, 0, 1), 1.6),  # 12
    Part.Circle(V(70, -35.5, 0), V(0, 0, 1), 1.6),  # 13
    Part.Circle(V(60, -23, 0), V(0, 0, 1), 1.6),  # 14
    Part.Circle(V(70, -10.5, 0), V(0, 0, 1), 1.6),  # 15
], False)
sketch17.addConstraint([
    Sketcher.Constraint("Equal", 0, 1),
    Sketcher.Constraint("Equal", 1, 2),
    Sketcher.Constraint("Equal", 2, 3),
    Sketcher.Constraint("Equal", 3, 4),
    Sketcher.Constraint("Equal", 4, 5),
    Sketcher.Constraint("Equal", 5, 6),
    Sketcher.Constraint("Equal", 6, 7),
    Sketcher.Constraint("Equal", 7, 8),
    Sketcher.Constraint("Equal", 8, 9),
    Sketcher.Constraint("Equal", 9, 10),
    Sketcher.Constraint("Equal", 10, 11),
    Sketcher.Constraint("Equal", 11, 12),
    Sketcher.Constraint("Equal", 12, 13),
    Sketcher.Constraint("Equal", 13, 14),
    Sketcher.Constraint("Equal", 14, 15),
    Sketcher.Constraint("Horizontal", 4, 3, 5, 3),
    Sketcher.Constraint("Horizontal", 3, 3, 6, 3),
    Sketcher.Constraint("Horizontal", 2, 3, 7, 3),
    Sketcher.Constraint("Horizontal", 1, 3, 8, 3),
    Sketcher.Constraint("Horizontal", 0, 3, 12, 3),
    Sketcher.Constraint("Horizontal", 11, 3, 13, 3),
    Sketcher.Constraint("Horizontal", 10, 3, 14, 3),
    Sketcher.Constraint("Horizontal", 9, 3, 15, 3),
    Sketcher.Constraint("Vertical", 0, 3, 1, 3),
    Sketcher.Constraint("Vertical", 1, 3, 2, 3),
    Sketcher.Constraint("Vertical", 2, 3, 3, 3),
    Sketcher.Constraint("Vertical", 3, 3, 4, 3),
    Sketcher.Constraint("Vertical", 5, 3, 6, 3),
    Sketcher.Constraint("Vertical", 6, 3, 7, 3),
    Sketcher.Constraint("Vertical", 7, 3, 8, 3),
    Sketcher.Constraint("Vertical", 9, 3, 11, 3),
    Sketcher.Constraint("Vertical", 8, 3, 12, 3),
    Sketcher.Constraint("Vertical", 13, 3, 15, 3),
    Sketcher.Constraint("Diameter", 0, 3.2),
    Sketcher.Constraint("DistanceX", -1, 1, 0, 3, 150.0),
    Sketcher.Constraint("DistanceX", -1, 1, 5, 3, 10.0),
    Sketcher.Constraint("DistanceX", -1, 1, 9, 3, 90.0),
    Sketcher.Constraint("DistanceX", -1, 1, 10, 3, 100.0),
    Sketcher.Constraint("DistanceY", 10, 3, -1, 1, 23.0),
    Sketcher.Constraint("DistanceX", -1, 1, 13, 3, 70.0),
    Sketcher.Constraint("DistanceX", -1, 1, 14, 3, 60.0),
    Sketcher.Constraint("DistanceY", 1, 3, 0, 3, 8.0),
    Sketcher.Constraint("DistanceY", 2, 3, 1, 3, 8.0),
    Sketcher.Constraint("DistanceY", 3, 3, 2, 3, 8.0),
    Sketcher.Constraint("DistanceY", 4, 3, 3, 3, 8.0),
    Sketcher.Constraint("DistanceY", 9, 3, 0, 3, 1.0),
    Sketcher.Constraint("DistanceY", 11, 3, 9, 3, 25.0),
    Sketcher.Constraint("DistanceY", 0, 3, -1, 1, 9.5),
])
sketch17.setExpression("Constraints[33]", "Params.sketch17_diameter")
doc.recompute()
hole2 = doc.addObject("PartDesign::Hole", "Hole001")
body.addObject(hole2)
hole2.Profile = sketch17
hole2.ThreadType = "None"
hole2.setExpression("Diameter", "Params.hole2_diameter")
hole2.DepthType = "Dimension"
hole2.setExpression("Depth", "Params.hole2_depth")
hole2.DrillPoint = "Flat"

# Sketch on XY plane
sketch18 = doc.addObject("Sketcher::SketchObject", "Sketch017")
body.addObject(sketch18)
sketch18.AttachmentSupport = (doc.XY_Plane, [""])
sketch18.MapMode = "FlatFace"
sketch18.addGeometry([
    Part.Circle(V(6, 17, 0), V(0, 0, 1), 2.5),
    Part.Circle(V(6, 42, 0), V(0, 0, 1), 2.5),
    Part.Circle(V(6, 118, 0), V(0, 0, 1), 2.5),
    Part.Circle(V(6, 143, 0), V(0, 0, 1), 2.5),
], False)
sketch18.addConstraint([
    Sketcher.Constraint("Equal", 0, 1),
    Sketcher.Constraint("Equal", 1, 2),
    Sketcher.Constraint("Equal", 2, 3),
    Sketcher.Constraint("Vertical", 0, 3, 1, 3),
    Sketcher.Constraint("Vertical", 1, 3, 2, 3),
    Sketcher.Constraint("Vertical", 2, 3, 3, 3),
    Sketcher.Constraint("Diameter", 0, 5.0),
    Sketcher.Constraint("DistanceX", -1, 1, 0, 3, 6.0),
    Sketcher.Constraint("DistanceY", -1, 1, 0, 3, 17.0),
    Sketcher.Constraint("DistanceY", -1, 1, 1, 3, 42.0),
    Sketcher.Constraint("DistanceY", -1, 1, 2, 3, 118.0),
    Sketcher.Constraint("DistanceY", -1, 1, 3, 3, 143.0),
])
sketch18.setExpression("Constraints[6]", "Params.sketch18_diameter")
doc.recompute()
hole3 = doc.addObject("PartDesign::Hole", "Hole002")
body.addObject(hole3)
hole3.Profile = sketch18
hole3.ThreadType = "None"
hole3.setExpression("Diameter", "Params.hole3_diameter")
hole3.DepthType = "Dimension"
hole3.setExpression("Depth", "Params.hole3_depth")
hole3.DrillPoint = "Flat"
doc.recompute()

fillet = doc.addObject("PartDesign::Fillet", "Fillet")
body.addObject(fillet)
fillet.Base = (hole3, edges_at(hole3, [(79.5, 80, -2.5)]))
fillet.setExpression("Radius", "Params.fillet_radius")
doc.recompute()

fillet2 = doc.addObject("PartDesign::Fillet", "Fillet001")
body.addObject(fillet2)
fillet2.Base = (fillet, edges_at(fillet, [(82, 80, 0)]))
fillet2.setExpression("Radius", "Params.fillet2_radius")
doc.recompute()

fillet3 = doc.addObject("PartDesign::Fillet", "Fillet002")
body.addObject(fillet3)
fillet3.Base = (fillet2, edges_at(fillet2, [
    (80.75, 160, -50),
    (80.75, 0, -50),
    (0, 160, -1.25),
    (0, 0, -1.25),
]))
fillet3.setExpression("Radius", "Params.fillet3_radius")

# Sketch on XY plane
sketch19 = doc.addObject("Sketcher::SketchObject", "Sketch018")
body.addObject(sketch19)
sketch19.AttachmentSupport = (doc.XY_Plane, [""])
sketch19.MapMode = "FlatFace"
sketch19.AttachmentOffset = App.Placement(V(0, 0, -2.5), App.Rotation())
sketch19.addGeometry([
    Part.Circle(V(40, 59, 0), V(0, 0, 1), 1.6),  # 0
    Part.Circle(V(40, 53, 0), V(0, 0, 1), 1.6),  # 1
    Part.Circle(V(30, 59, 0), V(0, 0, 1), 1.6),  # 2
    Part.Circle(V(30, 53, 0), V(0, 0, 1), 1.6),  # 3
    Part.Circle(V(40, 107, 0), V(0, 0, 1), 1.6),  # 4
    Part.Circle(V(30, 107, 0), V(0, 0, 1), 1.6),  # 5
    Part.Circle(V(30, 101, 0), V(0, 0, 1), 1.6),  # 6
    Part.Circle(V(40, 101, 0), V(0, 0, 1), 1.6),  # 7
], False)
sketch19.addConstraint([
    Sketcher.Constraint("Equal", 0, 1),
    Sketcher.Constraint("Equal", 1, 2),
    Sketcher.Constraint("Equal", 2, 3),
    Sketcher.Constraint("Equal", 3, 4),
    Sketcher.Constraint("Equal", 4, 5),
    Sketcher.Constraint("Equal", 5, 6),
    Sketcher.Constraint("Equal", 6, 7),
    Sketcher.Constraint("Horizontal", 0, 3, 2, 3),
    Sketcher.Constraint("Horizontal", 1, 3, 3, 3),
    Sketcher.Constraint("Horizontal", 4, 3, 5, 3),
    Sketcher.Constraint("Horizontal", 6, 3, 7, 3),
    Sketcher.Constraint("Vertical", 0, 3, 1, 3),
    Sketcher.Constraint("Vertical", 2, 3, 3, 3),
    Sketcher.Constraint("Vertical", 1, 3, 4, 3),
    Sketcher.Constraint("Vertical", 3, 3, 5, 3),
    Sketcher.Constraint("Vertical", 5, 3, 6, 3),
    Sketcher.Constraint("Vertical", 4, 3, 7, 3),
    Sketcher.Constraint("Diameter", 0, 3.2),
    Sketcher.Constraint("DistanceX", -1, 1, 0, 3, 40.0),
    Sketcher.Constraint("DistanceY", -1, 1, 0, 3, 59.0),
    Sketcher.Constraint("DistanceY", -1, 1, 1, 3, 53.0),
    Sketcher.Constraint("DistanceX", -1, 1, 2, 3, 30.0),
    Sketcher.Constraint("DistanceY", -1, 1, 4, 3, 107.0),
    Sketcher.Constraint("DistanceY", -1, 1, 6, 3, 101.0),
])
sketch19.setExpression("Constraints[17]", "Params.sketch19_diameter")
pocket15 = doc.addObject("PartDesign::Pocket", "Pocket014")
body.addObject(pocket15)
pocket15.Profile = sketch19
pocket15.setExpression("Length", "Params.pocket15_length")
pocket15.Reversed = True

# Sketch on YZ plane
sketch20 = doc.addObject("Sketcher::SketchObject", "Sketch019")
body.addObject(sketch20)
sketch20.AttachmentSupport = (doc.YZ_Plane, [""])
sketch20.MapMode = "FlatFace"
sketch20.AttachmentOffset = App.Placement(V(0, 0, 79.5), App.Rotation())
sketch20.addGeometry([
    Part.Circle(V(32.4, -40, 0), V(0, 0, 1), 1.6),
    Part.Circle(V(22.4, -40, 0), V(0, 0, 1), 1.6),
    Part.Circle(V(137.7, -40, 0), V(0, 0, 1), 1.6),
    Part.Circle(V(127.7, -40, 0), V(0, 0, 1), 1.6),
], False)
sketch20.addConstraint([
    Sketcher.Constraint("Equal", 0, 1),
    Sketcher.Constraint("Equal", 1, 2),
    Sketcher.Constraint("Equal", 2, 3),
    Sketcher.Constraint("Horizontal", 0, 3, 1, 3),
    Sketcher.Constraint("Horizontal", 1, 3, 2, 3),
    Sketcher.Constraint("Horizontal", 2, 3, 3, 3),
    Sketcher.Constraint("Diameter", 0, 3.2),
    Sketcher.Constraint("DistanceY", 0, 3, -1, 1, 40.0),
    Sketcher.Constraint("DistanceX", 1, 3, 0, 3, 10.0),
    Sketcher.Constraint("DistanceX", 3, 3, 2, 3, 10.0),
    Sketcher.Constraint("DistanceX", 0, 3, 2, 3, 105.3),
    Sketcher.Constraint("DistanceX", -1, 1, 0, 3, 32.35),
])
sketch20.setExpression("Constraints[6]", "Params.sketch20_diameter")
pocket16 = doc.addObject("PartDesign::Pocket", "Pocket015")
body.addObject(pocket16)
pocket16.Profile = sketch20
pocket16.Type = "ThroughAll"
pocket16.Reversed = True

doc.recompute()
